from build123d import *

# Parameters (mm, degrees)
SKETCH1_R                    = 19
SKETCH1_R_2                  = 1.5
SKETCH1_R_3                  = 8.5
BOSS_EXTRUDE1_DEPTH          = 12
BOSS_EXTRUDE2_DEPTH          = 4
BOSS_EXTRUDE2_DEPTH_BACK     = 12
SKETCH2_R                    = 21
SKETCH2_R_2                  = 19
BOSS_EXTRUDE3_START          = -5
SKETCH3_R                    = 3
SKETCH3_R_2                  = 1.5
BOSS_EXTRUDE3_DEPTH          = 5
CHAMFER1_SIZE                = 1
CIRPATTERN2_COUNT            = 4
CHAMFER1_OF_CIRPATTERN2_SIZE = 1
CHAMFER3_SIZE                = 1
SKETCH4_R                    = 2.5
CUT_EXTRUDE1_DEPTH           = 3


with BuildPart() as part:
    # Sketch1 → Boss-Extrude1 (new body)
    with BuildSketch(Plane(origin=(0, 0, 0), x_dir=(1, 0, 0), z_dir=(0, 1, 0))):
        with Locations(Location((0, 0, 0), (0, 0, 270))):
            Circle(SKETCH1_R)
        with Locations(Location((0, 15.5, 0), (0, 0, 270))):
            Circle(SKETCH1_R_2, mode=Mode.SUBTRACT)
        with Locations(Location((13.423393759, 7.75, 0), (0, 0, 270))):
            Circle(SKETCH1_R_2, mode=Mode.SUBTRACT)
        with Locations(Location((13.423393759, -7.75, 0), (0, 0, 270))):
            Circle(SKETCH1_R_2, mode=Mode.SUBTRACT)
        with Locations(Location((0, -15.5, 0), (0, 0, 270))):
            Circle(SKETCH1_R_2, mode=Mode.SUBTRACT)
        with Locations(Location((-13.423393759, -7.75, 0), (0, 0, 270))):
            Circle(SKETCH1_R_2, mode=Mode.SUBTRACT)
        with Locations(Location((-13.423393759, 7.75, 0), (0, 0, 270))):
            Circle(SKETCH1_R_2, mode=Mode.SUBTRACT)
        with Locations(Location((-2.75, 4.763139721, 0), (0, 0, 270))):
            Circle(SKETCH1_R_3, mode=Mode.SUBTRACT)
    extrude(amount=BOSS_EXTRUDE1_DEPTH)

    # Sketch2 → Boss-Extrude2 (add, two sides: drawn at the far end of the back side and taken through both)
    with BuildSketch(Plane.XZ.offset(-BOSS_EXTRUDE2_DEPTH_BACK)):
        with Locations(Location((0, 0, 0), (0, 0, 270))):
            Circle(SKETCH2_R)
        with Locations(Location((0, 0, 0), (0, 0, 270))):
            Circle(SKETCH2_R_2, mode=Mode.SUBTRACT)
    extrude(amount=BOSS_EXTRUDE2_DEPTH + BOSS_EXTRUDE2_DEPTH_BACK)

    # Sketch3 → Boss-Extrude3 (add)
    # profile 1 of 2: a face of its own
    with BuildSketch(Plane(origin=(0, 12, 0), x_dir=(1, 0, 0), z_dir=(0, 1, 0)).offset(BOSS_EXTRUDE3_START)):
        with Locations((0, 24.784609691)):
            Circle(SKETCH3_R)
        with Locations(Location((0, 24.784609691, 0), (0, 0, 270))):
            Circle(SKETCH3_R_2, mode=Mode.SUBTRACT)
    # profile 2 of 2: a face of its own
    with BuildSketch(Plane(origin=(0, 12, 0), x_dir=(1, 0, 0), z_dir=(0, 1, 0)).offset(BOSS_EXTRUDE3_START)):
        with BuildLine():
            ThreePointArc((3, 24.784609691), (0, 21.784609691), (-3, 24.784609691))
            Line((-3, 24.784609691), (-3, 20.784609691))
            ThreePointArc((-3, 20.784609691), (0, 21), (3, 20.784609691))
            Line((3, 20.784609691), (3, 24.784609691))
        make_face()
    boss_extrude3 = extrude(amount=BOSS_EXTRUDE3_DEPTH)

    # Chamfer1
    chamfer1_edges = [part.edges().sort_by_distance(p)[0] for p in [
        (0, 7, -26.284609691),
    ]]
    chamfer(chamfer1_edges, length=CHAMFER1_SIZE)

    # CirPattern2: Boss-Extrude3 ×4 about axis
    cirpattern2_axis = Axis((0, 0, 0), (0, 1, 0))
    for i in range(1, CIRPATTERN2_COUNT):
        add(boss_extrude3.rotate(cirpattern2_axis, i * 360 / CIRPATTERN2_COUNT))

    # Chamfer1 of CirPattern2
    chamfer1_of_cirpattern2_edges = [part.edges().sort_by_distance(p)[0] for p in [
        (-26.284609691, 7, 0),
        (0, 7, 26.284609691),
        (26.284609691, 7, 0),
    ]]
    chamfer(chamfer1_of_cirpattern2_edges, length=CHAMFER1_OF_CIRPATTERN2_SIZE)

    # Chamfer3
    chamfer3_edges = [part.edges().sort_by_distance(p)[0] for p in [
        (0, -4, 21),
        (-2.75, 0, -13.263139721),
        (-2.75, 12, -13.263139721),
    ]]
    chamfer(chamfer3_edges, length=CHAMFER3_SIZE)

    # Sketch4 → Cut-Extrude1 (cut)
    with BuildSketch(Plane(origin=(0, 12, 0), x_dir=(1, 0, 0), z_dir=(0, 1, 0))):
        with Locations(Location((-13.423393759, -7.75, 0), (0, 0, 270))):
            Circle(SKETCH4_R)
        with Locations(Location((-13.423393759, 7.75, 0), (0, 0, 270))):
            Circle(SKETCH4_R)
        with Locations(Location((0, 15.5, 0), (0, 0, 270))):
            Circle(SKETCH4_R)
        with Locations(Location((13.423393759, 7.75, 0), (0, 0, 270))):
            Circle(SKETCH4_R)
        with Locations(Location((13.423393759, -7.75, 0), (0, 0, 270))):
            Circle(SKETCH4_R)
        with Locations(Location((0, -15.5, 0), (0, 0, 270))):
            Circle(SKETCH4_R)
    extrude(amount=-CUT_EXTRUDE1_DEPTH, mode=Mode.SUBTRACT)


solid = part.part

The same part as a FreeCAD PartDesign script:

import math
import FreeCAD as App
import Part
import Sketcher
from FreeCAD import Vector


def edges_at(feature, points):
    """Names of the edges that pass closest to the given points."""
    edges = feature.Shape.Edges
    near = lambda p: min(range(len(edges)), key=lambda i: edges[i].distToShape(Part.Vertex(*p))[0])
    return sorted({f"Edge{near(p) + 1}" for p in points})

doc = App.newDocument("Part")
body = doc.addObject("PartDesign::Body", "Body")

# Sketch on XZ plane
sketch1 = doc.addObject("Sketcher::SketchObject", "Sketch")
body.addObject(sketch1)
sketch1.AttachmentSupport = (doc.XZ_Plane, [""])
sketch1.MapMode = "FlatFace"
sketch1.addGeometry(Part.Circle(Vector(0, 0, 0), Vector(0, 0, 1), 19), False)
sketch1.addGeometry(Part.Circle(Vector(-13.423394, -7.75, 0), Vector(0, 0, 1), 1.5), False)
sketch1.addGeometry(Part.Circle(Vector(0, -15.5, 0), Vector(0, 0, 1), 1.5), False)
sketch1.addGeometry(Part.Circle(Vector(-2.75, -4.76314, 0), Vector(0, 0, 1), 8.5), False)
sketch1.addGeometry(Part.Circle(Vector(-13.423394, 7.75, 0), Vector(0, 0, 1), 1.5), False)
sketch1.addGeometry(Part.Circle(Vector(13.423394, -7.75, 0), Vector(0, 0, 1), 1.5), False)
sketch1.addGeometry(Part.Circle(Vector(0, 15.5, 0), Vector(0, 0, 1), 1.5), False)
sketch1.addGeometry(Part.Circle(Vector(13.423394, 7.75, 0), Vector(0, 0, 1), 1.5), False)
sketch1.addConstraint(Sketcher.Constraint("Coincident", 0, 3, -1, 1))
sketch1.addConstraint(Sketcher.Constraint("Equal", 1, 2))
sketch1.addConstraint(Sketcher.Constraint("Equal", 2, 4))
sketch1.addConstraint(Sketcher.Constraint("Equal", 4, 5))
sketch1.addConstraint(Sketcher.Constraint("Equal", 5, 6))
sketch1.addConstraint(Sketcher.Constraint("Equal", 6, 7))
sketch1.addConstraint(Sketcher.Constraint("Symmetric", 4, 3, 5, 3, -1, 1))
sketch1.addConstraint(Sketcher.Constraint("Symmetric", 2, 3, 6, 3, -1, 1))
sketch1.addConstraint(Sketcher.Constraint("Symmetric", 1, 3, 7, 3, -1, 1))
sketch1.addConstraint(Sketcher.Constraint("Symmetric", 1, 3, 5, 3, -2))
sketch1.addConstraint(Sketcher.Constraint("PointOnObject", 2, 3, -2))
sketch1.addConstraint(Sketcher.Constraint("Diameter", 0, 38.0))
sketch1.addConstraint(Sketcher.Constraint("Diameter", 1, 3.0))
sketch1.addConstraint(Sketcher.Constraint("Diameter", 3, 17.0))
sketch1.addConstraint(Sketcher.Constraint("DistanceY", 2, 3, -1, 1, 15.5))
sketch1.addConstraint(Sketcher.Constraint("DistanceY", 1, 3, 4, 3, 15.5))
sketch1.addConstraint(Sketcher.Constraint("DistanceX", 3, 3, -1, 1, 2.75))
sketch1.addConstraint(Sketcher.Constraint("DistanceY", 3, 3, -1, 1, 4.76314))
sketch1.addConstraint(Sketcher.Constraint("DistanceX", 1, 3, -1, 1, 13.423394))
pad1 = doc.addObject("PartDesign::Pad", "Pad")
body.addObject(pad1)
pad1.Profile = sketch1
pad1.Length = 12
pad1.Reversed = True

# Sketch on XZ plane
sketch2 = doc.addObject("Sketcher::SketchObject", "Sketch001")
body.addObject(sketch2)
sketch2.AttachmentSupport = (doc.XZ_Plane, [""])
sketch2.MapMode = "FlatFace"
sketch2.addGeometry(Part.Circle(Vector(0, 0, 0), Vector(0, 0, 1), 21), False)
sketch2.addGeometry(Part.Circle(Vector(0, 0, 0), Vector(0, 0, 1), 19), False)
sketch2.addConstraint(Sketcher.Constraint("Coincident", 0, 3, -1, 1))
sketch2.addConstraint(Sketcher.Constraint("Coincident", 1, 3, -1, 1))
sketch2.addConstraint(Sketcher.Constraint("Diameter", 0, 42.0))
sketch2.addConstraint(Sketcher.Constraint("Diameter", 1, 38.0))
pad2 = doc.addObject("PartDesign::Pad", "Pad001")
body.addObject(pad2)
pad2.Profile = sketch2
pad2.Type = "TwoLengths"
pad2.Length = 4
pad2.Length2 = 12

# Sketch on XZ plane
sketch3 = doc.addObject("Sketcher::SketchObject", "Sketch002")
body.addObject(sketch3)
sketch3.AttachmentSupport = (doc.XZ_Plane, [""])
sketch3.MapMode = "FlatFace"
sketch3.AttachmentOffset = App.Placement(Vector(0, 0, -7), App.Rotation())
sketch3.addGeometry(Part.ArcOfCircle(Part.Circle(Vector(0, -24.78461, 0), Vector(0, 0, 1), 3), math.radians(180), math.radians(360)), False)
sketch3.addGeometry(Part.LineSegment(Vector(-3, -24.78461, 0), Vector(-3, -20.78461, 0)), False)
sketch3.addGeometry(Part.ArcOfCircle(Part.Circle(Vector(0, 0, 0), Vector(0, 0, 1), 21), math.radians(-98.213211), math.radians(-81.786789)), False)
sketch3.addGeometry(Part.LineSegment(Vector(3, -20.78461, 0), Vector(3, -24.78461, 0)), False)
sketch3.addGeometry(Part.Circle(Vector(0, -24.78461, 0), Vector(0, 0, 1), 1.5), False)
sketch3.addConstraint(Sketcher.Constraint("Tangent", 0, 1, 1, 1))
sketch3.addConstraint(Sketcher.Constraint("Coincident", 1, 2, 2, 1))
sketch3.addConstraint(Sketcher.Constraint("Coincident", 2, 2, 3, 1))
sketch3.addConstraint(Sketcher.Constraint("Tangent", 3, 2, 0, 2))
sketch3.addConstraint(Sketcher.Constraint("Vertical", 1))
sketch3.addConstraint(Sketcher.Constraint("Vertical", 3))
sketch3.addConstraint(Sketcher.Constraint("Coincident", 2, 3, -1, 1))
sketch3.addConstraint(Sketcher.Constraint("Coincident", 4, 3, 0, 3))
sketch3.addConstraint(Sketcher.Constraint("PointOnObject", 0, 3, -2))
sketch3.addConstraint(Sketcher.Constraint("Diameter", 4, 3.0))
sketch3.addConstraint(Sketcher.Constraint("Radius", 0, 3.0))
sketch3.addConstraint(Sketcher.Constraint("Radius", 2, 21.0))
sketch3.addConstraint(Sketcher.Constraint("DistanceY", 1, 1, 1, 2, 4.0))
pad3 = doc.addObject("PartDesign::Pad", "Pad002")
body.addObject(pad3)
pad3.Profile = sketch3
pad3.Length = 5
pad3.Reversed = True
doc.recompute()

chamfer = doc.addObject("PartDesign::Chamfer", "Chamfer")
body.addObject(chamfer)
chamfer.Base = (pad3, edges_at(pad3, [(0, 7, -26.285)]))
chamfer.Size = 1
doc.recompute()

polarpattern = doc.addObject("PartDesign::PolarPattern", "PolarPattern")
body.addObject(polarpattern)
polarpattern.Originals = [pad3]
polarpattern.Axis = (doc.Y_Axis, [""])
polarpattern.Angle = 360
polarpattern.Occurrences = 4
body.Tip = polarpattern
doc.recompute()

chamfer2 = doc.addObject("PartDesign::Chamfer", "Chamfer001")
body.addObject(chamfer2)
chamfer2.Base = (polarpattern, edges_at(polarpattern, [(-26.285, 7, 0), (0, 7, 26.285), (26.285, 7, 0)]))
chamfer2.Size = 1
doc.recompute()

chamfer3 = doc.addObject("PartDesign::Chamfer", "Chamfer002")
body.addObject(chamfer3)
chamfer3.Base = (chamfer2, edges_at(chamfer2, [(0, -4, 21), (-2.75, 0, -13.263), (-2.75, 12, -13.263)]))
chamfer3.Size = 1

# Sketch on XZ plane
sketch4 = doc.addObject("Sketcher::SketchObject", "Sketch003")
body.addObject(sketch4)
sketch4.AttachmentSupport = (doc.XZ_Plane, [""])
sketch4.MapMode = "FlatFace"
sketch4.AttachmentOffset = App.Placement(Vector(0, 0, -12), App.Rotation())
sketch4.addGeometry(Part.Circle(Vector(-13.423394, 7.75, 0), Vector(0, 0, 1), 2.5), False)
sketch4.addGeometry(Part.Circle(Vector(-13.423394, -7.75, 0), Vector(0, 0, 1), 2.5), False)
sketch4.addGeometry(Part.Circle(Vector(0, -15.5, 0), Vector(0, 0, 1), 2.5), False)
sketch4.addGeometry(Part.Circle(Vector(13.423394, -7.75, 0), Vector(0, 0, 1), 2.5), False)
sketch4.addGeometry(Part.Circle(Vector(13.423394, 7.75, 0), Vector(0, 0, 1), 2.5), False)
sketch4.addGeometry(Part.Circle(Vector(0, 15.5, 0), Vector(0, 0, 1), 2.5), False)
sketch4.addConstraint(Sketcher.Constraint("Equal", 0, 1))
sketch4.addConstraint(Sketcher.Constraint("Equal", 1, 2))
sketch4.addConstraint(Sketcher.Constraint("Equal", 2, 3))
sketch4.addConstraint(Sketcher.Constraint("Equal", 3, 4))
sketch4.addConstraint(Sketcher.Constraint("Equal", 4, 5))
sketch4.addConstraint(Sketcher.Constraint("Symmetric", 0, 3, 3, 3, -1, 1))
sketch4.addConstraint(Sketcher.Constraint("Symmetric", 1, 3, 4, 3, -1, 1))
sketch4.addConstraint(Sketcher.Constraint("Symmetric", 2, 3, 5, 3, -1, 1))
sketch4.addConstraint(Sketcher.Constraint("Symmetric", 1, 3, 3, 3, -2))
sketch4.addConstraint(Sketcher.Constraint("PointOnObject", 2, 3, -2))
sketch4.addConstraint(Sketcher.Constraint("Diameter", 0, 5.0))
sketch4.addConstraint(Sketcher.Constraint("DistanceY", 2, 3, 5, 3, 31.0))
sketch4.addConstraint(Sketcher.Constraint("DistanceY", 1, 3, 0, 3, 15.5))
sketch4.addConstraint(Sketcher.Constraint("DistanceX", 0, 3, -1, 1, 13.423394))
pocket1 = doc.addObject("PartDesign::Pocket", "Pocket")
body.addObject(pocket1)
pocket1.Profile = sketch4
pocket1.Length = 3
pocket1.Reversed = True

doc.recompute()
